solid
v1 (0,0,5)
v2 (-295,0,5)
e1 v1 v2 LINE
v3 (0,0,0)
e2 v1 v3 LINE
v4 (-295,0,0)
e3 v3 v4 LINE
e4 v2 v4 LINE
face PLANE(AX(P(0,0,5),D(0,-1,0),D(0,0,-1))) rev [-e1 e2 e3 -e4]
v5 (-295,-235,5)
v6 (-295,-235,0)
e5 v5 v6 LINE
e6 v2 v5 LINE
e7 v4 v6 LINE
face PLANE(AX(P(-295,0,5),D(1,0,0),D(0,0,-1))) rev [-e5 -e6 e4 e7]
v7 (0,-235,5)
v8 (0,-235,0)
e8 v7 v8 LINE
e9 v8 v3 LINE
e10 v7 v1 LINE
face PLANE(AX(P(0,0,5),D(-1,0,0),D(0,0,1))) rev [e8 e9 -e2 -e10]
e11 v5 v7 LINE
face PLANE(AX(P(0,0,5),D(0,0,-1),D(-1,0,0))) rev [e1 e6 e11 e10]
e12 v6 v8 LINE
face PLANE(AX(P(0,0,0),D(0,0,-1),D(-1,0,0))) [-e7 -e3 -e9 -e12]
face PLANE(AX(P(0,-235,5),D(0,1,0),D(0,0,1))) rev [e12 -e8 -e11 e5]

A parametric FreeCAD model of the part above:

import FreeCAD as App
import Part
import Sketcher
Q = App.Units.Quantity


def add_polygon(sketch, points):
    """Adds a closed chain of lines whose ends are joined by coincident constraints."""
    first, n = sketch.GeometryCount, len(points)
    for a, b in zip(points, points[1:] + points[:1]):
        sketch.addGeometry(Part.LineSegment(App.Vector(*a, 0), App.Vector(*b, 0)), False)
    for i in range(n):
        sketch.addConstraint(Sketcher.Constraint("Coincident", first + i, 2, first + (i + 1) % n, 1))

doc = App.newDocument("Part")
body = doc.addObject("PartDesign::Body", "Body")

# Sketch on XY plane
sketch1 = body.newObject("Sketcher::SketchObject", "Sketch")
sketch1.AttachmentSupport = (doc.getObject("XY_Plane"), [""])
sketch1.MapMode = "FlatFace"
add_polygon(sketch1, [(-295, 0), (-295, -235), (0, -235), (0, 0)])  # lines 0-3
sketch1.addConstraint(Sketcher.Constraint("Vertical", 0))
sketch1.addConstraint(Sketcher.Constraint("Horizontal", 1))
sketch1.addConstraint(Sketcher.Constraint("Vertical", 2))
sketch1.addConstraint(Sketcher.Constraint("Horizontal", 3))
sketch1.addConstraint(Sketcher.Constraint("Coincident", 2, 2, -1, 1))
sketch1.addConstraint(Sketcher.Constraint("DistanceX", 1, 1, 1, 2, Q("295 mm")))
sketch1.addConstraint(Sketcher.Constraint("DistanceY", 0, 2, 0, 1, Q("235 mm")))
pad1 = body.newObject("PartDesign::Pad", "Pad")
pad1.Profile = sketch1
pad1.Length = 5

doc.recompute()
